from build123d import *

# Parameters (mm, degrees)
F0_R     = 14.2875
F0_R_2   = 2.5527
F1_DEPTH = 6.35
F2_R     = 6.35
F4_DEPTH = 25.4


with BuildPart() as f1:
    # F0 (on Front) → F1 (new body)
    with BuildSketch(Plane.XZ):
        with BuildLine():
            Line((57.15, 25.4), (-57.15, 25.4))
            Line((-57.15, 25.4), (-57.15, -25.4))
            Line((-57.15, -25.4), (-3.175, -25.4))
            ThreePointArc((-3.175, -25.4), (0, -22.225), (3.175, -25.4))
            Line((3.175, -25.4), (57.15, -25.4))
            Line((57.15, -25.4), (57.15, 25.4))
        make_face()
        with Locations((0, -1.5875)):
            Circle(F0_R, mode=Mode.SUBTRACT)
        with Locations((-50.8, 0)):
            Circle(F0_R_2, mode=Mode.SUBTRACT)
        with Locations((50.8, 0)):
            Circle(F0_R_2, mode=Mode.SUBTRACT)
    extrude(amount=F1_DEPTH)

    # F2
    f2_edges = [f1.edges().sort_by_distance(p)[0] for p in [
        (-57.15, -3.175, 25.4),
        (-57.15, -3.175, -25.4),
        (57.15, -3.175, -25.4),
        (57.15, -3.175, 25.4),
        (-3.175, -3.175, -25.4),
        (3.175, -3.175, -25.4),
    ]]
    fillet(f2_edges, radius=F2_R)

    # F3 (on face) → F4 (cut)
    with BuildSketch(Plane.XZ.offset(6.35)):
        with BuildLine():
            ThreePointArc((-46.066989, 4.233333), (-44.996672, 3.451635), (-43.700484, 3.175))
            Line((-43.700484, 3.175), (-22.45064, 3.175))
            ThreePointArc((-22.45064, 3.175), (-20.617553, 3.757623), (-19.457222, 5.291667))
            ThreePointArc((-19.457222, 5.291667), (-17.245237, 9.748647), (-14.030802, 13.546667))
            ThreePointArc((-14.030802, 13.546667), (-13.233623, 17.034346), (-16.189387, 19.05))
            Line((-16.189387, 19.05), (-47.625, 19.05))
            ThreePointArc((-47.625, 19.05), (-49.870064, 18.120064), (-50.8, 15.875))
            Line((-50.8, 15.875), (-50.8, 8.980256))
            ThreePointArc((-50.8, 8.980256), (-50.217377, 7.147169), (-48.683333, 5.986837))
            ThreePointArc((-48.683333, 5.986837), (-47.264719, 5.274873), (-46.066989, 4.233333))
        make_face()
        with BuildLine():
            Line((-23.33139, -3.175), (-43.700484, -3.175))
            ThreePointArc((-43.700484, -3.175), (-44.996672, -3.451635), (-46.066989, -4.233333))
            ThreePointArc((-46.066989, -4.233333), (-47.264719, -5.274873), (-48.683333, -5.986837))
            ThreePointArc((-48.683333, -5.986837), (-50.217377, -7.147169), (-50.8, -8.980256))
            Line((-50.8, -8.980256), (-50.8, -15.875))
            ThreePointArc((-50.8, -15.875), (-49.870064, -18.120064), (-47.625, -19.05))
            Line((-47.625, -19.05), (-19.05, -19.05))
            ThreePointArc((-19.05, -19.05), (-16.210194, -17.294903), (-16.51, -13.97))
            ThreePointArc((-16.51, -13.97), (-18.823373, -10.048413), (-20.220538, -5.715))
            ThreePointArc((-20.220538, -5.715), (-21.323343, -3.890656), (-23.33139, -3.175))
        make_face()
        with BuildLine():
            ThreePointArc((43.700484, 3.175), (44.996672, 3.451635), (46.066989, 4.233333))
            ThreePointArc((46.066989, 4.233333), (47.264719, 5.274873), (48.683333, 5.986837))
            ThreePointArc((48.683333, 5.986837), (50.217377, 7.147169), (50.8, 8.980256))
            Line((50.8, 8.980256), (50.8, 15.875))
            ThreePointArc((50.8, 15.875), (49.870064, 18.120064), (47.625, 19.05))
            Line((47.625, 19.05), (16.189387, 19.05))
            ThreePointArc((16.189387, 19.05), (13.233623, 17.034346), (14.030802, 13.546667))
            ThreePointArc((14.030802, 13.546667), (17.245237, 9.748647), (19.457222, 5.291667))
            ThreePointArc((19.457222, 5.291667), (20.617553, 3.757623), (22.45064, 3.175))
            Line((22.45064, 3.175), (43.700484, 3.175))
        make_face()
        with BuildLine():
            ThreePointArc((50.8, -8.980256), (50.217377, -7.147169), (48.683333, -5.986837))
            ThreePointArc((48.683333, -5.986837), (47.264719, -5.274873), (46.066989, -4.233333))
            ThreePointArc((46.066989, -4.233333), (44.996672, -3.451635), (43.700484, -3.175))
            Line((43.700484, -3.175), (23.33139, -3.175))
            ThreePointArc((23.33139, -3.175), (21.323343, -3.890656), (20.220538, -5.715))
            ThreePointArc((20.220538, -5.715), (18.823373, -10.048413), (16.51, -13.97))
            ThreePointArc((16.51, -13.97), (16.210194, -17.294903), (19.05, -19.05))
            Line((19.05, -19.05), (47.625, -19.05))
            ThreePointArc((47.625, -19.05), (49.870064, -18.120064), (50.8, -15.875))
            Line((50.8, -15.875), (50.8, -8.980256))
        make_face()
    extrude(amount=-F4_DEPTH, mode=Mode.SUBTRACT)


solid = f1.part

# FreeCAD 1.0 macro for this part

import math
import FreeCAD as App
import Part
import Sketcher
from FreeCAD import Vector
Q = App.Units.Quantity


def edges_at(feature, points):
    """Names of the edges that pass closest to the given points."""
    edges = feature.Shape.Edges
    near = lambda p: min(range(len(edges)), key=lambda i: edges[i].distToShape(Part.Vertex(*p))[0])
    return sorted({f"Edge{near(p) + 1}" for p in points})

doc = App.newDocument("Part")
body = doc.addObject("PartDesign::Body", "Body")

# Sketch on XZ plane
sketch1 = body.newObject("Sketcher::SketchObject", "Sketch")
sketch1.AttachmentSupport = (doc.getObject("XZ_Plane"), [""])
sketch1.MapMode = "FlatFace"
sketch1.addGeometry(Part.LineSegment(Vector(57.1, 25.4, 0), Vector(-57.1, 25.4, 0)), False)
sketch1.addGeometry(Part.LineSegment(Vector(-57.1, 25.4, 0), Vector(-57.1, -25.4, 0)), False)
sketch1.addGeometry(Part.LineSegment(Vector(-57.1, -25.4, 0), Vector(-3.2, -25.4, 0)), False)
sketch1.addGeometry(Part.ArcOfCircle(Part.Circle(Vector(0, -25.4, 0), Vector(0, 0, 1), 3.2), math.radians(0), math.radians(180)), False)
sketch1.addGeometry(Part.LineSegment(Vector(3.2, -25.4, 0), Vector(57.1, -25.4, 0)), False)
sketch1.addGeometry(Part.LineSegment(Vector(57.1, -25.4, 0), Vector(57.1, 25.4, 0)), False)
sketch1.addGeometry(Part.Circle(Vector(-50.8, 0, 0), Vector(0, 0, 1), 2.6), False)
sketch1.addGeometry(Part.Circle(Vector(0, -1.6, 0), Vector(0, 0, 1), 14.3), False)
sketch1.addGeometry(Part.Circle(Vector(50.8, 0, 0), Vector(0, 0, 1), 2.6), False)
sketch1.addConstraint(Sketcher.Constraint("Coincident", 0, 2, 1, 1))
sketch1.addConstraint(Sketcher.Constraint("Coincident", 1, 2, 2, 1))
sketch1.addConstraint(Sketcher.Constraint("Coincident", 2, 2, 3, 2))
sketch1.addConstraint(Sketcher.Constraint("Coincident", 3, 1, 4, 1))
sketch1.addConstraint(Sketcher.Constraint("Coincident", 4, 2, 5, 1))
sketch1.addConstraint(Sketcher.Constraint("Coincident", 5, 2, 0, 1))
sketch1.addConstraint(Sketcher.Constraint("Horizontal", 0))
sketch1.addConstraint(Sketcher.Constraint("Vertical", 1))
sketch1.addConstraint(Sketcher.Constraint("Horizontal", 2))
sketch1.addConstraint(Sketcher.Constraint("Horizontal", 4))
sketch1.addConstraint(Sketcher.Constraint("Vertical", 5))
sketch1.addConstraint(Sketcher.Constraint("Equal", 6, 8))
sketch1.addConstraint(Sketcher.Constraint("Symmetric", 6, 3, 8, 3, -1, 1))
sketch1.addConstraint(Sketcher.Constraint("Symmetric", 0, 2, 4, 2, -1, 1))
sketch1.addConstraint(Sketcher.Constraint("Symmetric", 2, 2, 3, 1, -2))
sketch1.addConstraint(Sketcher.Constraint("PointOnObject", 6, 3, -1))
sketch1.addConstraint(Sketcher.Constraint("PointOnObject", 7, 3, -2))
sketch1.addConstraint(Sketcher.Constraint("Horizontal", 3, 3, 1, 2))
sketch1.addConstraint(Sketcher.Constraint("DistanceY", 1, 2, 1, 1, Q("2 in")))
sketch1.addConstraint(Sketcher.Constraint("Diameter", 6, Q("0.201 in")))
sketch1.addConstraint(Sketcher.Constraint("Diameter", 7, Q("1.125 in")))
sketch1.addConstraint(Sketcher.Constraint("DistanceX", 0, 2, 0, 1, Q("4.5 in")))
sketch1.addConstraint(Sketcher.Constraint("DistanceX", 6, 3, -1, 1, Q("2 in")))
sketch1.addConstraint(Sketcher.Constraint("Radius", 3, Q("0.125 in")))
sketch1.addConstraint(Sketcher.Constraint("DistanceY", 7, 3, -1, 1, Q("0.0625 in")))
pad1 = body.newObject("PartDesign::Pad", "Pad")
pad1.Profile = sketch1
pad1.Length = Q("0.25 in")
doc.recompute()

fillet = body.newObject("PartDesign::Fillet", "Fillet")
fillet.Base = (pad1, edges_at(pad1, [
    (-57.15, -3.175, 25.4),
    (-57.15, -3.175, -25.4),
    (57.15, -3.175, -25.4),
    (57.15, -3.175, 25.4),
    (-3.175, -3.175, -25.4),
    (3.175, -3.175, -25.4),
]))
fillet.Radius = Q("0.25 in")

# Sketch on XZ plane
sketch2 = body.newObject("Sketcher::SketchObject", "Sketch001")
sketch2.AttachmentSupport = (doc.getObject("XZ_Plane"), [""])
sketch2.MapMode = "FlatFace"
sketch2.AttachmentOffset = App.Placement(Vector(0, 0, 0.25 * 25.4), App.Rotation())
sketch2.addGeometry(Part.ArcOfCircle(Part.Circle(Vector(-43.7, 6.4, 0), Vector(0, 0, 1), 3.2), math.radians(-138), math.radians(-90)), False)
sketch2.addGeometry(Part.LineSegment(Vector(-43.7, 3.2, 0), Vector(-22.5, 3.2, 0)), False)
sketch2.addGeometry(Part.ArcOfCircle(Part.Circle(Vector(-22.5, 6.3, 0), Vector(0, 0, 1), 3.2), math.radians(-90), math.radians(-19)), False)
sketch2.addGeometry(Part.ArcOfCircle(Part.Circle(Vector(0, -1.6, 0), Vector(0, 0, 1), 20.6), math.radians(133), math.radians(161)), False)
sketch2.addGeometry(Part.ArcOfCircle(Part.Circle(Vector(-16.2, 15.9, 0), Vector(0, 0, 1), 3.2), math.radians(-47), math.radians(90)), False)
sketch2.addGeometry(Part.LineSegment(Vector(-16.2, 19.1, 0), Vector(-47.6, 19.1, 0)), False)
sketch2.addGeometry(Part.ArcOfCircle(Part.Circle(Vector(-47.6, 15.9, 0), Vector(0, 0, 1), 3.2), math.radians(90), math.radians(180)), False)
sketch2.addGeometry(Part.LineSegment(Vector(-50.8, 15.9, 0), Vector(-50.8, 9, 0)), False)
sketch2.addGeometry(Part.ArcOfCircle(Part.Circle(Vector(-47.6, 9, 0), Vector(0, 0, 1), 3.2), math.radians(180), math.radians(251)), False)
sketch2.addGeometry(Part.ArcOfCircle(Part.Circle(Vector(-50.8, 0, 0), Vector(0, 0, 1), 6.4), math.radians(42), math.radians(71)), False)
sketch2.addGeometry(Part.LineSegment(Vector(-23.3, -3.2, 0), Vector(-43.7, -3.2, 0)), False)
sketch2.addGeometry(Part.ArcOfCircle(Part.Circle(Vector(-43.7, -6.4, 0), Vector(0, 0, 1), 3.2), math.radians(90), math.radians(138)), False)
sketch2.addGeometry(Part.ArcOfCircle(Part.Circle(Vector(-50.8, 0, 0), Vector(0, 0, 1), 6.4), math.radians(-71), math.radians(-42)), False)
sketch2.addGeometry(Part.ArcOfCircle(Part.Circle(Vector(-47.6, -9, 0), Vector(0, 0, 1), 3.2), math.radians(109), math.radians(180)), False)
sketch2.addGeometry(Part.LineSegment(Vector(-50.8, -9, 0), Vector(-50.8, -15.9, 0)), False)
sketch2.addGeometry(Part.ArcOfCircle(Part.Circle(Vector(-47.6, -15.9, 0), Vector(0, 0, 1), 3.2), math.radians(-180), math.radians(-90)), False)
sketch2.addGeometry(Part.LineSegment(Vector(-47.6, -19.1, 0), Vector(-19.1, -19.1, 0)), False)
sketch2.addGeometry(Part.ArcOfCircle(Part.Circle(Vector(-19.1, -15.9, 0), Vector(0, 0, 1), 3.2), math.radians(-90), math.radians(37)), False)
sketch2.addGeometry(Part.ArcOfCircle(Part.Circle(Vector(0, -1.6, 0), Vector(0, 0, 1), 20.6), math.radians(-168), math.radians(-143)), False)
sketch2.addGeometry(Part.ArcOfCircle(Part.Circle(Vector(-23.3, -6.3, 0), Vector(0, 0, 1), 3.2), math.radians(12), math.radians(90)), False)
sketch2.addGeometry(Part.ArcOfCircle(Part.Circle(Vector(43.7, 6.4, 0), Vector(0, 0, 1), 3.2), math.radians(-90), math.radians(-42)), False)
sketch2.addGeometry(Part.ArcOfCircle(Part.Circle(Vector(50.8, 0, 0), Vector(0, 0, 1), 6.4), math.radians(109), math.radians(138)), False)
sketch2.addGeometry(Part.ArcOfCircle(Part.Circle(Vector(47.6, 9, 0), Vector(0, 0, 1), 3.2), math.radians(-71), math.radians(0)), False)
sketch2.addGeometry(Part.LineSegment(Vector(50.8, 9, 0), Vector(50.8, 15.9, 0)), False)
sketch2.addGeometry(Part.ArcOfCircle(Part.Circle(Vector(47.6, 15.9, 0), Vector(0, 0, 1), 3.2), math.radians(0), math.radians(90)), False)
sketch2.addGeometry(Part.LineSegment(Vector(47.6, 19.1, 0), Vector(16.2, 19.1, 0)), False)
sketch2.addGeometry(Part.ArcOfCircle(Part.Circle(Vector(16.2, 15.9, 0), Vector(0, 0, 1), 3.2), math.radians(90), math.radians(227)), False)
sketch2.addGeometry(Part.ArcOfCircle(Part.Circle(Vector(0, -1.6, 0), Vector(0, 0, 1), 20.6), math.radians(19), math.radians(47)), False)
sketch2.addGeometry(Part.ArcOfCircle(Part.Circle(Vector(22.5, 6.3, 0), Vector(0, 0, 1), 3.2), math.radians(-161), math.radians(-90)), False)
sketch2.addGeometry(Part.LineSegment(Vector(22.5, 3.2, 0), Vector(43.7, 3.2, 0)), False)
sketch2.addGeometry(Part.ArcOfCircle(Part.Circle(Vector(47.6, -9, 0), Vector(0, 0, 1), 3.2), math.radians(0), math.radians(71)), False)
sketch2.addGeometry(Part.ArcOfCircle(Part.Circle(Vector(50.8, 0, 0), Vector(0, 0, 1), 6.4), math.radians(-138), math.radians(-109)), False)
sketch2.addGeometry(Part.ArcOfCircle(Part.Circle(Vector(43.7, -6.4, 0), Vector(0, 0, 1), 3.2), math.radians(42), math.radians(90)), False)
sketch2.addGeometry(Part.LineSegment(Vector(43.7, -3.2, 0), Vector(23.3, -3.2, 0)), False)
sketch2.addGeometry(Part.ArcOfCircle(Part.Circle(Vector(23.3, -6.3, 0), Vector(0, 0, 1), 3.2), math.radians(90), math.radians(168)), False)
sketch2.addGeometry(Part.ArcOfCircle(Part.Circle(Vector(0, -1.6, 0), Vector(0, 0, 1), 20.6), math.radians(-37), math.radians(-12)), False)
sketch2.addGeometry(Part.ArcOfCircle(Part.Circle(Vector(19.1, -15.9, 0), Vector(0, 0, 1), 3.2), math.radians(143), math.radians(270)), False)
sketch2.addGeometry(Part.LineSegment(Vector(19.1, -19.1, 0), Vector(47.6, -19.1, 0)), False)
sketch2.addGeometry(Part.ArcOfCircle(Part.Circle(Vector(47.6, -15.9, 0), Vector(0, 0, 1), 3.2), math.radians(-90), math.radians(0)), False)
sketch2.addGeometry(Part.LineSegment(Vector(50.8, -15.9, 0), Vector(50.8, -9, 0)), False)
sketch2.addConstraint(Sketcher.Constraint("Tangent", 0, 2, 1, 1))
sketch2.addConstraint(Sketcher.Constraint("Tangent", 1, 2, 2, 1))
sketch2.addConstraint(Sketcher.Constraint("Tangent", 2, 2, 3, 2))
sketch2.addConstraint(Sketcher.Constraint("Tangent", 3, 1, 4, 1))
sketch2.addConstraint(Sketcher.Constraint("Tangent", 4, 2, 5, 1))
sketch2.addConstraint(Sketcher.Constraint("Tangent", 5, 2, 6, 1))
sketch2.addConstraint(Sketcher.Constraint("Tangent", 6, 2, 7, 1))
sketch2.addConstraint(Sketcher.Constraint("Tangent", 7, 2, 8, 1))
sketch2.addConstraint(Sketcher.Constraint("Tangent", 8, 2, 9, 2))
sketch2.addConstraint(Sketcher.Constraint("Tangent", 9, 1, 0, 1))
sketch2.addConstraint(Sketcher.Constraint("Tangent", 10, 2, 11, 1))
sketch2.addConstraint(Sketcher.Constraint("Tangent", 11, 2, 12, 2))
sketch2.addConstraint(Sketcher.Constraint("Tangent", 12, 1, 13, 1))
sketch2.addConstraint(Sketcher.Constraint("Tangent", 13, 2, 14, 1))
sketch2.addConstraint(Sketcher.Constraint("Tangent", 14, 2, 15, 1))
sketch2.addConstraint(Sketcher.Constraint("Tangent", 15, 2, 16, 1))
sketch2.addConstraint(Sketcher.Constraint("Tangent", 16, 2, 17, 1))
sketch2.addConstraint(Sketcher.Constraint("Tangent", 17, 2, 18, 2))
sketch2.addConstraint(Sketcher.Constraint("Tangent", 18, 1, 19, 1))
sketch2.addConstraint(Sketcher.Constraint("Tangent", 19, 2, 10, 1))
sketch2.addConstraint(Sketcher.Constraint("Tangent", 20, 2, 21, 2))
sketch2.addConstraint(Sketcher.Constraint("Tangent", 21, 1, 22, 1))
sketch2.addConstraint(Sketcher.Constraint("Tangent", 22, 2, 23, 1))
sketch2.addConstraint(Sketcher.Constraint("Tangent", 23, 2, 24, 1))
sketch2.addConstraint(Sketcher.Constraint("Tangent", 24, 2, 25, 1))
sketch2.addConstraint(Sketcher.Constraint("Tangent", 25, 2, 26, 1))
sketch2.addConstraint(Sketcher.Constraint("Tangent", 26, 2, 27, 2))
sketch2.addConstraint(Sketcher.Constraint("Tangent", 27, 1, 28, 1))
sketch2.addConstraint(Sketcher.Constraint("Tangent", 28, 2, 29, 1))
sketch2.addConstraint(Sketcher.Constraint("Tangent", 29, 2, 20, 1))
sketch2.addConstraint(Sketcher.Constraint("Tangent", 30, 2, 31, 2))
sketch2.addConstraint(Sketcher.Constraint("Tangent", 31, 1, 32, 1))
sketch2.addConstraint(Sketcher.Constraint("Tangent", 32, 2, 33, 1))
sketch2.addConstraint(Sketcher.Constraint("Tangent", 33, 2, 34, 1))
sketch2.addConstraint(Sketcher.Constraint("Tangent", 34, 2, 35, 2))
sketch2.addConstraint(Sketcher.Constraint("Tangent", 35, 1, 36, 1))
sketch2.addConstraint(Sketcher.Constraint("Tangent", 36, 2, 37, 1))
sketch2.addConstraint(Sketcher.Constraint("Tangent", 37, 2, 38, 1))
sketch2.addConstraint(Sketcher.Constraint("Tangent", 38, 2, 39, 1))
sketch2.addConstraint(Sketcher.Constraint("Tangent", 39, 2, 30, 1))
sketch2.addConstraint(Sketcher.Constraint("Horizontal", 1))
sketch2.addConstraint(Sketcher.Constraint("Horizontal", 5))
sketch2.addConstraint(Sketcher.Constraint("Vertical", 7))
sketch2.addConstraint(Sketcher.Constraint("Horizontal", 10))
sketch2.addConstraint(Sketcher.Constraint("Vertical", 14))
sketch2.addConstraint(Sketcher.Constraint("Horizontal", 16))
sketch2.addConstraint(Sketcher.Constraint("Vertical", 23))
sketch2.addConstraint(Sketcher.Constraint("Horizontal", 25))
sketch2.addConstraint(Sketcher.Constraint("Horizontal", 29))
sketch2.addConstraint(Sketcher.Constraint("Horizontal", 33))
sketch2.addConstraint(Sketcher.Constraint("Horizontal", 37))
sketch2.addConstraint(Sketcher.Constraint("Vertical", 39))
sketch2.addConstraint(Sketcher.Constraint("Coincident", 12, 3, 9, 3))
sketch2.addConstraint(Sketcher.Constraint("Coincident", 18, 3, 3, 3))
sketch2.addConstraint(Sketcher.Constraint("Coincident", 31, 3, 21, 3))
sketch2.addConstraint(Sketcher.Constraint("Coincident", 35, 3, 27, 3))
sketch2.addConstraint(Sketcher.Constraint("Equal", 4, 6))
sketch2.addConstraint(Sketcher.Constraint("Equal", 6, 8))
sketch2.addConstraint(Sketcher.Constraint("Equal", 0, 11))
sketch2.addConstraint(Sketcher.Constraint("Equal", 9, 12))
sketch2.addConstraint(Sketcher.Constraint("Equal", 8, 13))
sketch2.addConstraint(Sketcher.Constraint("Equal", 13, 15))
sketch2.addConstraint(Sketcher.Constraint("Equal", 15, 17))
sketch2.addConstraint(Sketcher.Constraint("Equal", 17, 19))
sketch2.addConstraint(Sketcher.Constraint("Equal", 11, 20))
sketch2.addConstraint(Sketcher.Constraint("Equal", 12, 21))
sketch2.addConstraint(Sketcher.Constraint("Equal", 19, 22))
sketch2.addConstraint(Sketcher.Constraint("Equal", 22, 24))
sketch2.addConstraint(Sketcher.Constraint("Equal", 24, 26))
sketch2.addConstraint(Sketcher.Constraint("Equal", 3, 27))
sketch2.addConstraint(Sketcher.Constraint("Equal", 2, 28))
sketch2.addConstraint(Sketcher.Constraint("Equal", 26, 30))
sketch2.addConstraint(Sketcher.Constraint("Equal", 21, 31))
sketch2.addConstraint(Sketcher.Constraint("Equal", 20, 32))
sketch2.addConstraint(Sketcher.Constraint("Equal", 30, 34))
sketch2.addConstraint(Sketcher.Constraint("Equal", 18, 35))
sketch2.addConstraint(Sketcher.Constraint("Equal", 34, 36))
sketch2.addConstraint(Sketcher.Constraint("Equal", 36, 38))
sketch2.addConstraint(Sketcher.Constraint("Symmetric", 11, 3, 20, 3, -1, 1))
sketch2.addConstraint(Sketcher.Constraint("Symmetric", 13, 3, 22, 3, -1, 1))
sketch2.addConstraint(Sketcher.Constraint("Symmetric", 6, 3, 38, 3, -1, 1))
sketch2.addConstraint(Sketcher.Constraint("Symmetric", 0, 3, 20, 3, -2))
sketch2.addConstraint(Sketcher.Constraint("Symmetric", 6, 3, 24, 3, -2))
sketch2.addConstraint(Sketcher.Constraint("Symmetric", 3, 3, 27, 3, -2))
sketch2.addConstraint(Sketcher.Constraint("Horizontal", 11, 3, 32, 3))
sketch2.addConstraint(Sketcher.Constraint("Horizontal", 17, 3, 36, 3))
sketch2.addConstraint(Sketcher.Constraint("Radius", 9, Q("0.2500002 in")))
sketch2.addConstraint(Sketcher.Constraint("DistanceX", 9, 3, -1, 1, Q("2.0000001 in")))
sketch2.addConstraint(Sketcher.Constraint("DistanceX", 6, 2, -1, 1, Q("2 in")))
sketch2.addConstraint(Sketcher.Constraint("Radius", 0, Q("0.1250001 in")))
sketch2.addConstraint(Sketcher.Constraint("Radius", 2, Q("0.1249999 in")))
sketch2.addConstraint(Sketcher.Constraint("Radius", 4, Q("0.125 in")))
sketch2.addConstraint(Sketcher.Constraint("DistanceX", 16, 1, 16, 2, Q("1.125 in")))
sketch2.addConstraint(Sketcher.Constraint("DistanceY", -1, 1, 0, 3, Q("0.2500001 in")))
sketch2.addConstraint(Sketcher.Constraint("DistanceY", -1, 1, 4, 2, Q("0.75 in")))
sketch2.addConstraint(Sketcher.Constraint("DistanceX", 17, 2, -1, 1, Q("0.65 in")))
sketch2.addConstraint(Sketcher.Constraint("DistanceY", 3, 3, -1, 1, Q("0.0624999 in")))
sketch2.addConstraint(Sketcher.Constraint("Radius", 3, 20.637495))
pocket1 = body.newObject("PartDesign::Pocket", "Pocket")
pocket1.Profile = sketch2
pocket1.Length = Q("1 in")

doc.recompute()
